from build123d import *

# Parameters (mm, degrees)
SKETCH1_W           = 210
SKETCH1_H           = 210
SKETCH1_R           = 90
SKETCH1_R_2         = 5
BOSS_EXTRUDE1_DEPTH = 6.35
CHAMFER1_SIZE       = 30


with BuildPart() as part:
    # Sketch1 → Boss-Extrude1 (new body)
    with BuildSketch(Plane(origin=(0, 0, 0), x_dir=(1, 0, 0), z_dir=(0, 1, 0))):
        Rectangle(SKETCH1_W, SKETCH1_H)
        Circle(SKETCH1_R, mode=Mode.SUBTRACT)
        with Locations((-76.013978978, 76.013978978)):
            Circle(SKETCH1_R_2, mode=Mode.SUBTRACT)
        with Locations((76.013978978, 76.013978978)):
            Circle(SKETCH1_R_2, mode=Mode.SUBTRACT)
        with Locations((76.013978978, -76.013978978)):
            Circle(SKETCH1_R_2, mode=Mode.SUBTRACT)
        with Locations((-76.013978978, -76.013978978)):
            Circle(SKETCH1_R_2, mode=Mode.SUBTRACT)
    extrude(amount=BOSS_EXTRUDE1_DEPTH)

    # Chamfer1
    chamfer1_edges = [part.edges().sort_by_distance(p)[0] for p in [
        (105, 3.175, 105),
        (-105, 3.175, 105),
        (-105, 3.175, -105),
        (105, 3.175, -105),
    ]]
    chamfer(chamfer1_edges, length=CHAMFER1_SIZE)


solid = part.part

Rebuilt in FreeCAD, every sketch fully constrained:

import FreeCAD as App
import Part
import Sketcher

V = App.Vector


def edges_at(feature, points):
    """Names of the edges that pass closest to the given points."""
    edges = feature.Shape.Edges
    near = lambda p: min(range(len(edges)), key=lambda i: edges[i].distToShape(Part.Vertex(*p))[0])
    return sorted({f"Edge{near(p) + 1}" for p in points})


def add_polygon(sketch, points):
    """Adds a closed chain of lines whose ends are joined by coincident constraints."""
    first, n = sketch.GeometryCount, len(points)
    for a, b in zip(points, points[1:] + points[:1]):
        sketch.addGeometry(Part.LineSegment(App.Vector(*a, 0), App.Vector(*b, 0)), False)
    for i in range(n):
        sketch.addConstraint(Sketcher.Constraint("Coincident", first + i, 2, first + (i + 1) % n, 1))

doc = App.newDocument("Part")
params = doc.addObject("Spreadsheet::Sheet", "Params")
for row, (alias, value) in enumerate([
    ("sketch1_diameter", "10 mm"),
    ("sketch1_diameter2", "180 mm"),
    ("sketch1_width", "210 mm"),
    ("pad1_length", "6.35 mm"),
    ("chamfer_size", "30 mm"),
], start=1):
    params.set(f"A{row}", alias)
    params.set(f"B{row}", "=" + value)
    params.setAlias(f"B{row}", alias)

body = doc.addObject("PartDesign::Body", "Body")

sketch1 = body.newObject("Sketcher::SketchObject", "Sketch")
sketch1.AttachmentSupport = (doc.getObject("XZ_Plane"), [""])
sketch1.MapMode = "FlatFace"
add_polygon(sketch1, [(-105, -105), (-105, 105), (105, 105), (105, -105)])
sketch1.addGeometry(Part.Circle(V(-76, 76, 0), V(0, 0, 1), 5), False)
sketch1.addGeometry(Part.Circle(V(76, 76, 0), V(0, 0, 1), 5), False)
sketch1.addGeometry(Part.Circle(V(-76, -76, 0), V(0, 0, 1), 5), False)
sketch1.addGeometry(Part.Circle(V(0, 0, 0), V(0, 0, 1), 90), False)
sketch1.addGeometry(Part.Circle(V(76, -76, 0), V(0, 0, 1), 5), False)
sketch1.addConstraint([
    Sketcher.Constraint("Vertical", 0),
    Sketcher.Constraint("Horizontal", 1),
    Sketcher.Constraint("Vertical", 2),
    Sketcher.Constraint("Horizontal", 3),
    Sketcher.Constraint("Coincident", 7, 3, -1, 1),
    Sketcher.Constraint("Equal", 4, 5),
    Sketcher.Constraint("Equal", 5, 6),
    Sketcher.Constraint("Equal", 6, 8),
    Sketcher.Constraint("Symmetric", 5, 3, 6, 3, -1, 1),
    Sketcher.Constraint("Symmetric", 4, 3, 8, 3, -1, 1),
    Sketcher.Constraint("Symmetric", 0, 2, 2, 2, -1, 1),
    Sketcher.Constraint("Symmetric", 4, 3, 5, 3, -2),
    Sketcher.Constraint("Equal", 3, 0),
    Sketcher.Constraint("Diameter", 4, 10.0),
    Sketcher.Constraint("Diameter", 7, 180.0),
    Sketcher.Constraint("DistanceX", 1, 1, 1, 2, 210.0),
    Sketcher.Constraint("DistanceX", 4, 3, -1, 1, 76.013979),
    Sketcher.Constraint("DistanceY", -1, 1, 4, 3, 76.013979),
])
sketch1.setExpression("Constraints[17]", "Params.sketch1_diameter")
sketch1.setExpression("Constraints[18]", "Params.sketch1_diameter2")
sketch1.setExpression("Constraints[19]", "Params.sketch1_width")
pad1 = body.newObject("PartDesign::Pad", "Pad")
pad1.Profile = sketch1
pad1.setExpression("Length", "Params.pad1_length")
pad1.Reversed = True
doc.recompute()

chamfer = body.newObject("PartDesign::Chamfer", "Chamfer")
chamfer.Base = (pad1, edges_at(pad1, [
    (105, 3.175, 105),
    (-105, 3.175, 105),
    (-105, 3.175, -105),
    (105, 3.175, -105),
]))
chamfer.setExpression("Size", "Params.chamfer_size")

doc.recompute()
